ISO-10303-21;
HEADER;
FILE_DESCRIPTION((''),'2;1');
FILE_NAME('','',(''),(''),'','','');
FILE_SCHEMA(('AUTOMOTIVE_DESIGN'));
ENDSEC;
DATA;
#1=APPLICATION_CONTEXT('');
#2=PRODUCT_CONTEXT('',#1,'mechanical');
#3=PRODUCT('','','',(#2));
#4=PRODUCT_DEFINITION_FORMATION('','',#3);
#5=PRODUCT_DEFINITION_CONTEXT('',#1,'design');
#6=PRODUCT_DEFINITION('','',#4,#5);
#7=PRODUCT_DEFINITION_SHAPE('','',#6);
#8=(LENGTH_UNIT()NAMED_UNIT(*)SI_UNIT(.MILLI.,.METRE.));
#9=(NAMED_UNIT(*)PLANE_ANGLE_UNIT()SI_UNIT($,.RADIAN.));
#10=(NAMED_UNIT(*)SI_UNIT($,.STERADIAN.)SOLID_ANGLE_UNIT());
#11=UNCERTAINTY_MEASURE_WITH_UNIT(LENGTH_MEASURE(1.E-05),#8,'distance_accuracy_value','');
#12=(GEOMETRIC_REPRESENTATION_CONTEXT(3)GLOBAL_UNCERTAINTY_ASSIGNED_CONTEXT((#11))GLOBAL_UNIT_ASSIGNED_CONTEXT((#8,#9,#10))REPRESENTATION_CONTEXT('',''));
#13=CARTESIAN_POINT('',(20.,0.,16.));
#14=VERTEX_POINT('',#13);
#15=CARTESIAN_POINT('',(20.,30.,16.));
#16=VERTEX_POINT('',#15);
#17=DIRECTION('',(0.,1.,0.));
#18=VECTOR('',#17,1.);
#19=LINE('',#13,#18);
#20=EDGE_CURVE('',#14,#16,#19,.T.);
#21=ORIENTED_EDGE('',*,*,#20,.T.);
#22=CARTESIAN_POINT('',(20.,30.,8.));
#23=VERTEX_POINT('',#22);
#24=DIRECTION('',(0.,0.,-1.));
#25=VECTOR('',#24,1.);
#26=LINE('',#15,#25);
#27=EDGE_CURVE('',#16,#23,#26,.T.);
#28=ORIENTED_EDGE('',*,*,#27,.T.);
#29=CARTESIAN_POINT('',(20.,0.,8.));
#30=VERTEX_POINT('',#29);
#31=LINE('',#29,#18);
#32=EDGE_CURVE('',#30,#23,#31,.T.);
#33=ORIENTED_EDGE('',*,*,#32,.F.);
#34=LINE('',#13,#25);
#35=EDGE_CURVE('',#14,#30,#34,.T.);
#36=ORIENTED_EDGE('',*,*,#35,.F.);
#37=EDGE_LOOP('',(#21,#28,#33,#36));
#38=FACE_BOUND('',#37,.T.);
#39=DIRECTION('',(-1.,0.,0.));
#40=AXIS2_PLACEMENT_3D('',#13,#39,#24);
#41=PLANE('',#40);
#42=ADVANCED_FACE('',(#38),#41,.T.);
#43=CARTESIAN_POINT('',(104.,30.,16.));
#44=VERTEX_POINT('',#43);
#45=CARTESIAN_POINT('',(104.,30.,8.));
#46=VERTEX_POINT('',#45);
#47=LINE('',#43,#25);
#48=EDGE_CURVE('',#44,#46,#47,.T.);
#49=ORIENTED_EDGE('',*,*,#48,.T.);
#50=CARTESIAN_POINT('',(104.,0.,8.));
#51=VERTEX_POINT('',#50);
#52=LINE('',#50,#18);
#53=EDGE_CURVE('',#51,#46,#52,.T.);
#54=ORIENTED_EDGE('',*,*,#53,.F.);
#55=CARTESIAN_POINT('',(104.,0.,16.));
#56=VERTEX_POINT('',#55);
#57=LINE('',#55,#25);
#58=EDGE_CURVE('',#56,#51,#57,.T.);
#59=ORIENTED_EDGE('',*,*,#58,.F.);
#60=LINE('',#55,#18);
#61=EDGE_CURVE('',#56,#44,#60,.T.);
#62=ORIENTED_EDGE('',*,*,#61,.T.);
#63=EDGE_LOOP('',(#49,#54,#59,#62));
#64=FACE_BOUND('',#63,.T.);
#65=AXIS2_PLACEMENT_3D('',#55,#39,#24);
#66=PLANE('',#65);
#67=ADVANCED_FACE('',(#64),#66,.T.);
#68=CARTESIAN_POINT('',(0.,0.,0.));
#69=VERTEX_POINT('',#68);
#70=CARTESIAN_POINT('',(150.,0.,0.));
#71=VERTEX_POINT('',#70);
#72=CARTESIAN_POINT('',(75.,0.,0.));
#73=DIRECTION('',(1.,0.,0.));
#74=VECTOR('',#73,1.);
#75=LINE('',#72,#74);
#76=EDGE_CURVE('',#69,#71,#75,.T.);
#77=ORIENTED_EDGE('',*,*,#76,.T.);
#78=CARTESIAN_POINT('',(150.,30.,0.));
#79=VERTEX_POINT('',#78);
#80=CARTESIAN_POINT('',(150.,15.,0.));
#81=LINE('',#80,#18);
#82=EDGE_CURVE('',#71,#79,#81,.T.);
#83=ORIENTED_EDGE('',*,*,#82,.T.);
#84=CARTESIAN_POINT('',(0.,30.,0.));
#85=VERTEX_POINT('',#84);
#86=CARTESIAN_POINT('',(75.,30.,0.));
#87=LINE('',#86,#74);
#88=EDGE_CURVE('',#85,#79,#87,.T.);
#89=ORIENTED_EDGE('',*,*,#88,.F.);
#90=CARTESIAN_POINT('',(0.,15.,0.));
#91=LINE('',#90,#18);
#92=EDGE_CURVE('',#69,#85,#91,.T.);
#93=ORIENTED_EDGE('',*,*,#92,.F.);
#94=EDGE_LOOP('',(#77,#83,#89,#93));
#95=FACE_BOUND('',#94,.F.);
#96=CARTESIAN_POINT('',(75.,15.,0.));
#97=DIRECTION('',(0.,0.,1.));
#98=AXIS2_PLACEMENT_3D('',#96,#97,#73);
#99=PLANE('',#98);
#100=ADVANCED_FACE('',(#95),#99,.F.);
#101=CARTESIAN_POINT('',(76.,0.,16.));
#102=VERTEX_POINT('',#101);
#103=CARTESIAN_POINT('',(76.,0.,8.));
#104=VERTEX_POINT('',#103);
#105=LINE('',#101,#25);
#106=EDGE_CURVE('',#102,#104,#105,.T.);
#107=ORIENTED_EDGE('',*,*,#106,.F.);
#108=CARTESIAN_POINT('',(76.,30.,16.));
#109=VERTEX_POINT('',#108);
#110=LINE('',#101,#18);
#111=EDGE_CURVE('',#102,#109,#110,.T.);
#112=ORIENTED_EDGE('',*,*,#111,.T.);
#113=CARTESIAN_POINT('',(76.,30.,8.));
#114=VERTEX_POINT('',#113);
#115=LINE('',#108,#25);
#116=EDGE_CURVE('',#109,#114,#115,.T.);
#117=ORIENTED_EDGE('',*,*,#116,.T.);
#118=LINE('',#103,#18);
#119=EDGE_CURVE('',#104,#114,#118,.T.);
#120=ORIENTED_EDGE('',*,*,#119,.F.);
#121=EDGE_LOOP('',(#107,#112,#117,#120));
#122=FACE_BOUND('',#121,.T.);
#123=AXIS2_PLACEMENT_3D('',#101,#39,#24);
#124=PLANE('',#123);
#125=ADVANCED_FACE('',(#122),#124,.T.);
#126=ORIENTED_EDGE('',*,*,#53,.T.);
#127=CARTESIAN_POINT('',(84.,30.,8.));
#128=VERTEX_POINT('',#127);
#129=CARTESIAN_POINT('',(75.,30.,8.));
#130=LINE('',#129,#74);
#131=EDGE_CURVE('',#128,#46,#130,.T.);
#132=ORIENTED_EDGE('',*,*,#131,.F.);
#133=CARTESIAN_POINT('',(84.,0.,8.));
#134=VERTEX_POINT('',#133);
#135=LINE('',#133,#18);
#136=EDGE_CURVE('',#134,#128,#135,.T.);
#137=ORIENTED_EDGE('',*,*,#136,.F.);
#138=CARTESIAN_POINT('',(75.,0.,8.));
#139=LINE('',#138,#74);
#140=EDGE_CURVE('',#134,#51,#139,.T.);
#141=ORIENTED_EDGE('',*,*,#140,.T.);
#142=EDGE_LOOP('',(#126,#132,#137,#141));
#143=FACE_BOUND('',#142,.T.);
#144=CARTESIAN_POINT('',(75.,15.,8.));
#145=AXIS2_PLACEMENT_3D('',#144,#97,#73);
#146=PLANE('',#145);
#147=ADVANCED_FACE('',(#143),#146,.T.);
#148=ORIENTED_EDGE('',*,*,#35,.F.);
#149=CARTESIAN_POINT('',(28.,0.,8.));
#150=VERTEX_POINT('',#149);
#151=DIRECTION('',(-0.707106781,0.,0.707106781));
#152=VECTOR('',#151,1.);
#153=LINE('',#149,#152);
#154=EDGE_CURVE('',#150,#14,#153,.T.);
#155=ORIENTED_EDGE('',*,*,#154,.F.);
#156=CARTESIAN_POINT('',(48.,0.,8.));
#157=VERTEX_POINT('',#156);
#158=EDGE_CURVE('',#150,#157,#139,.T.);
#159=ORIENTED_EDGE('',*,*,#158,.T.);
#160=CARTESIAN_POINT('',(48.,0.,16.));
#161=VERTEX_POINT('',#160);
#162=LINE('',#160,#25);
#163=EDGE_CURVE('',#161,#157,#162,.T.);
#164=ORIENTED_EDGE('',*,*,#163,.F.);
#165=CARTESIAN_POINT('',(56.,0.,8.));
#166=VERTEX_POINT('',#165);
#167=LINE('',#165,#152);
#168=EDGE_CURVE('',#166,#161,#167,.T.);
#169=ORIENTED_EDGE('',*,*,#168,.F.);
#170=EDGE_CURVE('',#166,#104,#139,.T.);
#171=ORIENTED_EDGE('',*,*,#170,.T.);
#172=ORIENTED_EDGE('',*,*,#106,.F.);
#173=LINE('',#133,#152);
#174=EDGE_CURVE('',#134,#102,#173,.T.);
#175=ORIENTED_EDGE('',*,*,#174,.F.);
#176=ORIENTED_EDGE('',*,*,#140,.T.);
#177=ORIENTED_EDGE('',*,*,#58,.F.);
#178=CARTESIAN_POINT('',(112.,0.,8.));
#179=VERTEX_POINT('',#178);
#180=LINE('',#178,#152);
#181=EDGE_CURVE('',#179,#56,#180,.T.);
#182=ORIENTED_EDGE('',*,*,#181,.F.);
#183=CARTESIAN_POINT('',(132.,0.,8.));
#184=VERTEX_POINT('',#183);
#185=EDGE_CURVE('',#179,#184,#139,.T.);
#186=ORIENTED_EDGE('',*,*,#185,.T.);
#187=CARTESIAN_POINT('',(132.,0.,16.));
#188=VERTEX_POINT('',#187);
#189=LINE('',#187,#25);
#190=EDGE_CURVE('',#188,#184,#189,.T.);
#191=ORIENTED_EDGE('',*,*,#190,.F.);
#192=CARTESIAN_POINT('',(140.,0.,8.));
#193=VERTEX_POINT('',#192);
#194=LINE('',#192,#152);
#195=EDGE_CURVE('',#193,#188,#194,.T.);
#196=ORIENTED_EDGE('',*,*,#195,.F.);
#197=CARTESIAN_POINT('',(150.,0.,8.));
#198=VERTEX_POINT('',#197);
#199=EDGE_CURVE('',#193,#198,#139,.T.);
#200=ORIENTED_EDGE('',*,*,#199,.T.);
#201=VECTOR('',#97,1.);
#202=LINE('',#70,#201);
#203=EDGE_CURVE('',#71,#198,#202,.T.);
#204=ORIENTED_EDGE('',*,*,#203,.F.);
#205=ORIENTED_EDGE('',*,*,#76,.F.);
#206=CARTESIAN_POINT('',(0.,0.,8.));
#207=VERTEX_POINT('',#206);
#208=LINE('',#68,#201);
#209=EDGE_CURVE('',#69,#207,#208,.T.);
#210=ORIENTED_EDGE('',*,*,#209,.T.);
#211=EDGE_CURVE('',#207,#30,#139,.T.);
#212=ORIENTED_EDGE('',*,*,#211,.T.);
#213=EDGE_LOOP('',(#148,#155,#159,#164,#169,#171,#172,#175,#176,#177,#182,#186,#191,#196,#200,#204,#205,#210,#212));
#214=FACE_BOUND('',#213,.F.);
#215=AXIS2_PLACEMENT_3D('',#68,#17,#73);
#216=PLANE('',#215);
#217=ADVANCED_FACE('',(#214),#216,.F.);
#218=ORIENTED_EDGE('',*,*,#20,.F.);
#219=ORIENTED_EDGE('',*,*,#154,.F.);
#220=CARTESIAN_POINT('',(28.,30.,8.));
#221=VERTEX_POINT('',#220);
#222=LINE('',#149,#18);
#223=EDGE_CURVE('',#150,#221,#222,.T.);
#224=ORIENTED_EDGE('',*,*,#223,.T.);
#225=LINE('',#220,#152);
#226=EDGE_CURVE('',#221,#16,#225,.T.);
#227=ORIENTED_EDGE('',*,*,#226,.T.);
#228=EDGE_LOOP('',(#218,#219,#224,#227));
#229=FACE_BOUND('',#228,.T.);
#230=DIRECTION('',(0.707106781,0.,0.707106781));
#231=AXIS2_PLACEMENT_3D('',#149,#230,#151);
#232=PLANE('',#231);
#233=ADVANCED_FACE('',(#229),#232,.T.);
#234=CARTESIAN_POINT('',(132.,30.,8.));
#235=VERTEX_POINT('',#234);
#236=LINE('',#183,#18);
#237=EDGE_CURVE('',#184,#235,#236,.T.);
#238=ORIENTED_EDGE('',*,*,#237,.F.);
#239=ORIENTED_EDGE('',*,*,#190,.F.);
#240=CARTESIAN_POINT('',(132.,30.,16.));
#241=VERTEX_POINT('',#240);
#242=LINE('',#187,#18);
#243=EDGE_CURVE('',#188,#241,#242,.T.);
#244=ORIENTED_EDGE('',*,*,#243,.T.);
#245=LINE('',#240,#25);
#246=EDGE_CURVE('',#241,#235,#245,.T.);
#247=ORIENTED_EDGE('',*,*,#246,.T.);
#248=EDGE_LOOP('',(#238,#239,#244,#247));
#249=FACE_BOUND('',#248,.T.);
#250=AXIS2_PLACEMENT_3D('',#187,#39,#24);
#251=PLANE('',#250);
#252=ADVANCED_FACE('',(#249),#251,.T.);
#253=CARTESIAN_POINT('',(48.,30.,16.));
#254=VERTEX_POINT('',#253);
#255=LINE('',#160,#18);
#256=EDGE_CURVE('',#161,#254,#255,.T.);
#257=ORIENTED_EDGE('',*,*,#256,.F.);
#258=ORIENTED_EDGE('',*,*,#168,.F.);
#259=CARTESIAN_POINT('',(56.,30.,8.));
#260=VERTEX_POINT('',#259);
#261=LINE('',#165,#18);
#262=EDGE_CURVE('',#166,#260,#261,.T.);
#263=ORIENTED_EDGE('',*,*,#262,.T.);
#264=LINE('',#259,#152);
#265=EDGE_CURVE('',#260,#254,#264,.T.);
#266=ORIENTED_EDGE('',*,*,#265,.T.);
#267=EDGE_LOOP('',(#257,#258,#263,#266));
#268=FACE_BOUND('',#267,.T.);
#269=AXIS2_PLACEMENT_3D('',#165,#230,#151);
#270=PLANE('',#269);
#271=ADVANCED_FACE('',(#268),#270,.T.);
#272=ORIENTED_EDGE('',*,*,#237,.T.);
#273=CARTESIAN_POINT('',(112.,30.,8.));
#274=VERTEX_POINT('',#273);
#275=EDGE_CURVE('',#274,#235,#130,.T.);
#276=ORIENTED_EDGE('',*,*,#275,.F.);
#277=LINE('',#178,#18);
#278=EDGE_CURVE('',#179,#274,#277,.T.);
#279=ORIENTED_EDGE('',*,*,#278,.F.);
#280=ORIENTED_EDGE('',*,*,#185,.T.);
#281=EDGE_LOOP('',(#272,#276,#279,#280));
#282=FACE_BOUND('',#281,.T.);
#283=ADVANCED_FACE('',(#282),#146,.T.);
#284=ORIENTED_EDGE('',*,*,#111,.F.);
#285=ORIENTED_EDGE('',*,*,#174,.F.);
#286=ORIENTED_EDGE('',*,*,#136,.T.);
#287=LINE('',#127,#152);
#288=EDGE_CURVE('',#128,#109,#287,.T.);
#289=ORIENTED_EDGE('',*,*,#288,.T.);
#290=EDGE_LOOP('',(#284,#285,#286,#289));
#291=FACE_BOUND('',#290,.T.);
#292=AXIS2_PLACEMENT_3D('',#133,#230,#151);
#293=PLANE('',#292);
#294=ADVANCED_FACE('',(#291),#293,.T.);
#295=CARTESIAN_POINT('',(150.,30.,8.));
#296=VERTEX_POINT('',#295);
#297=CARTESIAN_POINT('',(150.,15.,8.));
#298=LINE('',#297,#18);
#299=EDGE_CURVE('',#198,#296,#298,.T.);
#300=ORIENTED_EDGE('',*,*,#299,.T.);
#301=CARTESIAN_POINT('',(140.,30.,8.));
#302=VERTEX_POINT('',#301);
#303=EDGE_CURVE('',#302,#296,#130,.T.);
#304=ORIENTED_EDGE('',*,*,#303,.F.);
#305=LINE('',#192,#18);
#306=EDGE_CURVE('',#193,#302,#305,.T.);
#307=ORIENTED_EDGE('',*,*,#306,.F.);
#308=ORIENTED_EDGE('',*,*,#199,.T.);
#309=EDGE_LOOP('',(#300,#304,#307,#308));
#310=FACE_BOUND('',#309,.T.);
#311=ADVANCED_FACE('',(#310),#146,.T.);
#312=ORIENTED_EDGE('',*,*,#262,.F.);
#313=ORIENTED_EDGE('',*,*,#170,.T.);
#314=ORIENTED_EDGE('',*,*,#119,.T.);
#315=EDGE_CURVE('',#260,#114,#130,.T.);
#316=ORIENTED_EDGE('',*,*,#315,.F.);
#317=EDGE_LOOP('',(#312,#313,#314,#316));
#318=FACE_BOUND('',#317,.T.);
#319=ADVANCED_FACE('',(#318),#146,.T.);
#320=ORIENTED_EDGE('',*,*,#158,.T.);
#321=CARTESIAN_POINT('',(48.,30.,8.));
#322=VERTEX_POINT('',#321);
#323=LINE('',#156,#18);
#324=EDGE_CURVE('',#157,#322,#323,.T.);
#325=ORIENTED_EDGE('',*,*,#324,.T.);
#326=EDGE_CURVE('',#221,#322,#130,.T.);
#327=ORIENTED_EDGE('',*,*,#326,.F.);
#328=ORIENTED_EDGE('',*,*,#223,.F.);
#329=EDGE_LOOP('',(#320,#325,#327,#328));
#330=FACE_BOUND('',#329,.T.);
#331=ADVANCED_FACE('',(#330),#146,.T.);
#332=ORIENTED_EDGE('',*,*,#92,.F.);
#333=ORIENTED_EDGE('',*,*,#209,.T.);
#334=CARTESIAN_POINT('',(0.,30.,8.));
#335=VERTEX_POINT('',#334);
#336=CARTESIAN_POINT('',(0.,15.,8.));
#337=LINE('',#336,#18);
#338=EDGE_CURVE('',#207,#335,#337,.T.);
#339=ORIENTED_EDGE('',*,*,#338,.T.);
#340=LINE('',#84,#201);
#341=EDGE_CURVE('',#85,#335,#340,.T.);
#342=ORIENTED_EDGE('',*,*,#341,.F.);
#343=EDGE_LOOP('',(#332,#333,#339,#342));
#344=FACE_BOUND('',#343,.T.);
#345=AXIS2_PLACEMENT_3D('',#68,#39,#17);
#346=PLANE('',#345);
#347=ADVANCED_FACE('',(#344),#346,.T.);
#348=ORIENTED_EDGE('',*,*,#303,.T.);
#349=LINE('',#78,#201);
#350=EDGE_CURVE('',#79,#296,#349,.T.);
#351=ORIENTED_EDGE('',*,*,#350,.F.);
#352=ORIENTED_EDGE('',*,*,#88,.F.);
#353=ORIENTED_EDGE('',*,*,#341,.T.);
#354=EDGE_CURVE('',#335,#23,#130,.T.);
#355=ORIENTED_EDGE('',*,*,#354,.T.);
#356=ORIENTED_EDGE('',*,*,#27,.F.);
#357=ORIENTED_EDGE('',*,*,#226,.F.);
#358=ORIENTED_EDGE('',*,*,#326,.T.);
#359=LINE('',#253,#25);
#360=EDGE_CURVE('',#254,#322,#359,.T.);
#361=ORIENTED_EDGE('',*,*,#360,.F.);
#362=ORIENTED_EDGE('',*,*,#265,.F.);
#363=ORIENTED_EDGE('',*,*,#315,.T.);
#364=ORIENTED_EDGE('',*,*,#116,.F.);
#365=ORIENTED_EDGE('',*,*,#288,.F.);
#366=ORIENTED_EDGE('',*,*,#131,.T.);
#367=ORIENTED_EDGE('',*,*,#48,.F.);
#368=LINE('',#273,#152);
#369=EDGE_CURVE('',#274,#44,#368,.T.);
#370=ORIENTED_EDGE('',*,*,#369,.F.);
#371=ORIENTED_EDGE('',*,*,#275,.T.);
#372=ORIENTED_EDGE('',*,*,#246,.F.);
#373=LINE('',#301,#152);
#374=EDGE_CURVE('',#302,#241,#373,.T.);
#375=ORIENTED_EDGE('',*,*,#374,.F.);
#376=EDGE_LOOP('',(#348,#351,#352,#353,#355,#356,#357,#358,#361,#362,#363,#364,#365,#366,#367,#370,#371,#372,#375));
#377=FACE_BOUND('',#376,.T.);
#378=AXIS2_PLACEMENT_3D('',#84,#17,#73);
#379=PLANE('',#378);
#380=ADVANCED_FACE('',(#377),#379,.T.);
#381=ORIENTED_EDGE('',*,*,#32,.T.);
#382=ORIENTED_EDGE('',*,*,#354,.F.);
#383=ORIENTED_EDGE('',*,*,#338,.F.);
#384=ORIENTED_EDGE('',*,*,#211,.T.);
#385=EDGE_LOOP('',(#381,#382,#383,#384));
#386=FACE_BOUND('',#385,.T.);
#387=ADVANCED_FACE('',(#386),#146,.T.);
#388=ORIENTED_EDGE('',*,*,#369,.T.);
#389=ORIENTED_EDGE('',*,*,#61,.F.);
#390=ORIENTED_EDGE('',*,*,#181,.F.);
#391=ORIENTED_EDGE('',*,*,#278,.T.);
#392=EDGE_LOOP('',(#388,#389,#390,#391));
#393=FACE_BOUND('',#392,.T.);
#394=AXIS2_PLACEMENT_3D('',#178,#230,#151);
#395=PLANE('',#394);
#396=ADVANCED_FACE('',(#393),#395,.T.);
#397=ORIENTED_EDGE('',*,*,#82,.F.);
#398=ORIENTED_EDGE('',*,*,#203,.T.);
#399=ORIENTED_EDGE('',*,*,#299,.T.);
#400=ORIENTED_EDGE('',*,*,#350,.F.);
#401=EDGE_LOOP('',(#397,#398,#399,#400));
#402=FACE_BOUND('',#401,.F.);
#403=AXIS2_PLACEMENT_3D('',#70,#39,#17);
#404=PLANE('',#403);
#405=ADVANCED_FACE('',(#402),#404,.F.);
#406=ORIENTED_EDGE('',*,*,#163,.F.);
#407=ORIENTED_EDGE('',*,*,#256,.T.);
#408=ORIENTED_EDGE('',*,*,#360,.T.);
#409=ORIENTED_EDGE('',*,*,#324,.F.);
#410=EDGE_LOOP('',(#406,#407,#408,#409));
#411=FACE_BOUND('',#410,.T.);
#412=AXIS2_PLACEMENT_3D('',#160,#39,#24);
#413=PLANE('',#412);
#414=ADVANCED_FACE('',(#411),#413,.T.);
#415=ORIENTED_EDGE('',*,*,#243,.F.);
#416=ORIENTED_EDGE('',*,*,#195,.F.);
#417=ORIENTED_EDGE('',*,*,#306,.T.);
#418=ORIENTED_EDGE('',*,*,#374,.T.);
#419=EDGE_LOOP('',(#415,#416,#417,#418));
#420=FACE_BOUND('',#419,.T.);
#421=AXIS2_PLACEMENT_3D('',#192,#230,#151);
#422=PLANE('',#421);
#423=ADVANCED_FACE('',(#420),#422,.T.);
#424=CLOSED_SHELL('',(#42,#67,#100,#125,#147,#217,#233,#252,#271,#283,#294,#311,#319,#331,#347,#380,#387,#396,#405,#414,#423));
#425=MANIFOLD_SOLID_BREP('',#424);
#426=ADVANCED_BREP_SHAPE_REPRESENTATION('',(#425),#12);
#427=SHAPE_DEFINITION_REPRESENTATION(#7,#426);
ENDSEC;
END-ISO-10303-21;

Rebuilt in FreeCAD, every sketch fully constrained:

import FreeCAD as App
import Part
import Sketcher
Q = App.Units.Quantity

doc = App.newDocument("Part")
body = doc.addObject("PartDesign::Body", "Body")

sketch1 = doc.addObject("Sketcher::SketchObject", "Sketch")
body.addObject(sketch1)
sketch1.AttachmentSupport = (doc.XY_Plane, [""])
sketch1.MapMode = "FlatFace"
sketch1.addGeometry([
    Part.LineSegment(App.Vector(0, 30, 0), App.Vector(0, 0, 0)),
    Part.LineSegment(App.Vector(0, 0, 0), App.Vector(150, 0, 0)),
    Part.LineSegment(App.Vector(150, 0, 0), App.Vector(150, 30, 0)),
    Part.LineSegment(App.Vector(150, 30, 0), App.Vector(0, 30, 0)),
], False)
sketch1.addConstraint([
    Sketcher.Constraint("Coincident", 0, 2, 1, 1),
    Sketcher.Constraint("Coincident", 1, 2, 2, 1),
    Sketcher.Constraint("Coincident", 2, 2, 3, 1),
    Sketcher.Constraint("Coincident", 3, 2, 0, 1),
    Sketcher.Constraint("Vertical", 0),
    Sketcher.Constraint("Horizontal", 1),
    Sketcher.Constraint("Vertical", 2),
    Sketcher.Constraint("Horizontal", 3),
    Sketcher.Constraint("Coincident", 0, 2, -1, 1),
    Sketcher.Constraint("DistanceX", 1, 1, 1, 2, Q("150 mm")),
    Sketcher.Constraint("DistanceY", 0, 2, 0, 1, Q("30 mm")),
])
pad1 = doc.addObject("PartDesign::Pad", "Pad")
body.addObject(pad1)
pad1.Profile = sketch1
pad1.Length = 8

sketch2 = doc.addObject("Sketcher::SketchObject", "Sketch001")
body.addObject(sketch2)
sketch2.AttachmentSupport = (doc.XZ_Plane, [""])
sketch2.MapMode = "FlatFace"
sketch2.addGeometry([
    Part.LineSegment(App.Vector(28, 8, 0), App.Vector(20, 16, 0)),
    Part.LineSegment(App.Vector(20, 16, 0), App.Vector(20, 8, 0)),
    Part.LineSegment(App.Vector(20, 8, 0), App.Vector(28, 8, 0)),
    Part.LineSegment(App.Vector(56, 8, 0), App.Vector(48, 16, 0)),
    Part.LineSegment(App.Vector(48, 16, 0), App.Vector(48, 8, 0)),
    Part.LineSegment(App.Vector(48, 8, 0), App.Vector(56, 8, 0)),
    Part.LineSegment(App.Vector(84, 8, 0), App.Vector(76, 16, 0)),
    Part.LineSegment(App.Vector(76, 16, 0), App.Vector(76, 8, 0)),
    Part.LineSegment(App.Vector(76, 8, 0), App.Vector(84, 8, 0)),
    Part.LineSegment(App.Vector(112, 8, 0), App.Vector(104, 16, 0)),
    Part.LineSegment(App.Vector(104, 16, 0), App.Vector(104, 8, 0)),
    Part.LineSegment(App.Vector(104, 8, 0), App.Vector(112, 8, 0)),
    Part.LineSegment(App.Vector(140, 8, 0), App.Vector(132, 16, 0)),
    Part.LineSegment(App.Vector(132, 16, 0), App.Vector(132, 8, 0)),
    Part.LineSegment(App.Vector(132, 8, 0), App.Vector(140, 8, 0)),
], False)
sketch2.addConstraint([
    Sketcher.Constraint("Coincident", 0, 2, 1, 1),
    Sketcher.Constraint("Coincident", 1, 2, 2, 1),
    Sketcher.Constraint("Coincident", 2, 2, 0, 1),
    Sketcher.Constraint("Coincident", 3, 2, 4, 1),
    Sketcher.Constraint("Coincident", 4, 2, 5, 1),
    Sketcher.Constraint("Coincident", 5, 2, 3, 1),
    Sketcher.Constraint("Coincident", 6, 2, 7, 1),
    Sketcher.Constraint("Coincident", 7, 2, 8, 1),
    Sketcher.Constraint("Coincident", 8, 2, 6, 1),
    Sketcher.Constraint("Coincident", 9, 2, 10, 1),
    Sketcher.Constraint("Coincident", 10, 2, 11, 1),
    Sketcher.Constraint("Coincident", 11, 2, 9, 1),
    Sketcher.Constraint("Coincident", 12, 2, 13, 1),
    Sketcher.Constraint("Coincident", 13, 2, 14, 1),
    Sketcher.Constraint("Coincident", 14, 2, 12, 1),
    Sketcher.Constraint("Vertical", 1),
    Sketcher.Constraint("Horizontal", 2),
    Sketcher.Constraint("Vertical", 4),
    Sketcher.Constraint("Horizontal", 5),
    Sketcher.Constraint("Vertical", 7),
    Sketcher.Constraint("Horizontal", 8),
    Sketcher.Constraint("Vertical", 10),
    Sketcher.Constraint("Horizontal", 11),
    Sketcher.Constraint("Vertical", 13),
    Sketcher.Constraint("Horizontal", 14),
    Sketcher.Constraint("Parallel", 0, 3),
    Sketcher.Constraint("Parallel", 3, 6),
    Sketcher.Constraint("Parallel", 6, 9),
    Sketcher.Constraint("Parallel", 9, 12),
    Sketcher.Constraint("Horizontal", 0, 2, 3, 2),
    Sketcher.Constraint("Horizontal", 2, 2, 4, 2),
    Sketcher.Constraint("Horizontal", 3, 2, 6, 2),
    Sketcher.Constraint("Horizontal", 5, 2, 7, 2),
    Sketcher.Constraint("Horizontal", 6, 2, 9, 2),
    Sketcher.Constraint("Horizontal", 8, 2, 10, 2),
    Sketcher.Constraint("Horizontal", 9, 2, 12, 2),
    Sketcher.Constraint("Horizontal", 11, 2, 13, 2),
    Sketcher.Constraint("Equal", 14, 1),
    Sketcher.Constraint("DistanceX", 2, 1, 2, 2, Q("8 mm")),
    Sketcher.Constraint("DistanceX", -1, 1, 0, 2, Q("20 mm")),
    Sketcher.Constraint("DistanceY", -1, 1, 0, 2, Q("16 mm")),
    Sketcher.Constraint("DistanceX", -1, 1, 3, 2, Q("48 mm")),
    Sketcher.Constraint("DistanceX", -1, 1, 6, 2, Q("76 mm")),
    Sketcher.Constraint("DistanceX", -1, 1, 9, 2, Q("104 mm")),
    Sketcher.Constraint("DistanceX", -1, 1, 12, 2, Q("132 mm")),
])
pad2 = doc.addObject("PartDesign::Pad", "Pad001")
body.addObject(pad2)
pad2.Profile = sketch2
pad2.Length = 30
pad2.Reversed = True

doc.recompute()
